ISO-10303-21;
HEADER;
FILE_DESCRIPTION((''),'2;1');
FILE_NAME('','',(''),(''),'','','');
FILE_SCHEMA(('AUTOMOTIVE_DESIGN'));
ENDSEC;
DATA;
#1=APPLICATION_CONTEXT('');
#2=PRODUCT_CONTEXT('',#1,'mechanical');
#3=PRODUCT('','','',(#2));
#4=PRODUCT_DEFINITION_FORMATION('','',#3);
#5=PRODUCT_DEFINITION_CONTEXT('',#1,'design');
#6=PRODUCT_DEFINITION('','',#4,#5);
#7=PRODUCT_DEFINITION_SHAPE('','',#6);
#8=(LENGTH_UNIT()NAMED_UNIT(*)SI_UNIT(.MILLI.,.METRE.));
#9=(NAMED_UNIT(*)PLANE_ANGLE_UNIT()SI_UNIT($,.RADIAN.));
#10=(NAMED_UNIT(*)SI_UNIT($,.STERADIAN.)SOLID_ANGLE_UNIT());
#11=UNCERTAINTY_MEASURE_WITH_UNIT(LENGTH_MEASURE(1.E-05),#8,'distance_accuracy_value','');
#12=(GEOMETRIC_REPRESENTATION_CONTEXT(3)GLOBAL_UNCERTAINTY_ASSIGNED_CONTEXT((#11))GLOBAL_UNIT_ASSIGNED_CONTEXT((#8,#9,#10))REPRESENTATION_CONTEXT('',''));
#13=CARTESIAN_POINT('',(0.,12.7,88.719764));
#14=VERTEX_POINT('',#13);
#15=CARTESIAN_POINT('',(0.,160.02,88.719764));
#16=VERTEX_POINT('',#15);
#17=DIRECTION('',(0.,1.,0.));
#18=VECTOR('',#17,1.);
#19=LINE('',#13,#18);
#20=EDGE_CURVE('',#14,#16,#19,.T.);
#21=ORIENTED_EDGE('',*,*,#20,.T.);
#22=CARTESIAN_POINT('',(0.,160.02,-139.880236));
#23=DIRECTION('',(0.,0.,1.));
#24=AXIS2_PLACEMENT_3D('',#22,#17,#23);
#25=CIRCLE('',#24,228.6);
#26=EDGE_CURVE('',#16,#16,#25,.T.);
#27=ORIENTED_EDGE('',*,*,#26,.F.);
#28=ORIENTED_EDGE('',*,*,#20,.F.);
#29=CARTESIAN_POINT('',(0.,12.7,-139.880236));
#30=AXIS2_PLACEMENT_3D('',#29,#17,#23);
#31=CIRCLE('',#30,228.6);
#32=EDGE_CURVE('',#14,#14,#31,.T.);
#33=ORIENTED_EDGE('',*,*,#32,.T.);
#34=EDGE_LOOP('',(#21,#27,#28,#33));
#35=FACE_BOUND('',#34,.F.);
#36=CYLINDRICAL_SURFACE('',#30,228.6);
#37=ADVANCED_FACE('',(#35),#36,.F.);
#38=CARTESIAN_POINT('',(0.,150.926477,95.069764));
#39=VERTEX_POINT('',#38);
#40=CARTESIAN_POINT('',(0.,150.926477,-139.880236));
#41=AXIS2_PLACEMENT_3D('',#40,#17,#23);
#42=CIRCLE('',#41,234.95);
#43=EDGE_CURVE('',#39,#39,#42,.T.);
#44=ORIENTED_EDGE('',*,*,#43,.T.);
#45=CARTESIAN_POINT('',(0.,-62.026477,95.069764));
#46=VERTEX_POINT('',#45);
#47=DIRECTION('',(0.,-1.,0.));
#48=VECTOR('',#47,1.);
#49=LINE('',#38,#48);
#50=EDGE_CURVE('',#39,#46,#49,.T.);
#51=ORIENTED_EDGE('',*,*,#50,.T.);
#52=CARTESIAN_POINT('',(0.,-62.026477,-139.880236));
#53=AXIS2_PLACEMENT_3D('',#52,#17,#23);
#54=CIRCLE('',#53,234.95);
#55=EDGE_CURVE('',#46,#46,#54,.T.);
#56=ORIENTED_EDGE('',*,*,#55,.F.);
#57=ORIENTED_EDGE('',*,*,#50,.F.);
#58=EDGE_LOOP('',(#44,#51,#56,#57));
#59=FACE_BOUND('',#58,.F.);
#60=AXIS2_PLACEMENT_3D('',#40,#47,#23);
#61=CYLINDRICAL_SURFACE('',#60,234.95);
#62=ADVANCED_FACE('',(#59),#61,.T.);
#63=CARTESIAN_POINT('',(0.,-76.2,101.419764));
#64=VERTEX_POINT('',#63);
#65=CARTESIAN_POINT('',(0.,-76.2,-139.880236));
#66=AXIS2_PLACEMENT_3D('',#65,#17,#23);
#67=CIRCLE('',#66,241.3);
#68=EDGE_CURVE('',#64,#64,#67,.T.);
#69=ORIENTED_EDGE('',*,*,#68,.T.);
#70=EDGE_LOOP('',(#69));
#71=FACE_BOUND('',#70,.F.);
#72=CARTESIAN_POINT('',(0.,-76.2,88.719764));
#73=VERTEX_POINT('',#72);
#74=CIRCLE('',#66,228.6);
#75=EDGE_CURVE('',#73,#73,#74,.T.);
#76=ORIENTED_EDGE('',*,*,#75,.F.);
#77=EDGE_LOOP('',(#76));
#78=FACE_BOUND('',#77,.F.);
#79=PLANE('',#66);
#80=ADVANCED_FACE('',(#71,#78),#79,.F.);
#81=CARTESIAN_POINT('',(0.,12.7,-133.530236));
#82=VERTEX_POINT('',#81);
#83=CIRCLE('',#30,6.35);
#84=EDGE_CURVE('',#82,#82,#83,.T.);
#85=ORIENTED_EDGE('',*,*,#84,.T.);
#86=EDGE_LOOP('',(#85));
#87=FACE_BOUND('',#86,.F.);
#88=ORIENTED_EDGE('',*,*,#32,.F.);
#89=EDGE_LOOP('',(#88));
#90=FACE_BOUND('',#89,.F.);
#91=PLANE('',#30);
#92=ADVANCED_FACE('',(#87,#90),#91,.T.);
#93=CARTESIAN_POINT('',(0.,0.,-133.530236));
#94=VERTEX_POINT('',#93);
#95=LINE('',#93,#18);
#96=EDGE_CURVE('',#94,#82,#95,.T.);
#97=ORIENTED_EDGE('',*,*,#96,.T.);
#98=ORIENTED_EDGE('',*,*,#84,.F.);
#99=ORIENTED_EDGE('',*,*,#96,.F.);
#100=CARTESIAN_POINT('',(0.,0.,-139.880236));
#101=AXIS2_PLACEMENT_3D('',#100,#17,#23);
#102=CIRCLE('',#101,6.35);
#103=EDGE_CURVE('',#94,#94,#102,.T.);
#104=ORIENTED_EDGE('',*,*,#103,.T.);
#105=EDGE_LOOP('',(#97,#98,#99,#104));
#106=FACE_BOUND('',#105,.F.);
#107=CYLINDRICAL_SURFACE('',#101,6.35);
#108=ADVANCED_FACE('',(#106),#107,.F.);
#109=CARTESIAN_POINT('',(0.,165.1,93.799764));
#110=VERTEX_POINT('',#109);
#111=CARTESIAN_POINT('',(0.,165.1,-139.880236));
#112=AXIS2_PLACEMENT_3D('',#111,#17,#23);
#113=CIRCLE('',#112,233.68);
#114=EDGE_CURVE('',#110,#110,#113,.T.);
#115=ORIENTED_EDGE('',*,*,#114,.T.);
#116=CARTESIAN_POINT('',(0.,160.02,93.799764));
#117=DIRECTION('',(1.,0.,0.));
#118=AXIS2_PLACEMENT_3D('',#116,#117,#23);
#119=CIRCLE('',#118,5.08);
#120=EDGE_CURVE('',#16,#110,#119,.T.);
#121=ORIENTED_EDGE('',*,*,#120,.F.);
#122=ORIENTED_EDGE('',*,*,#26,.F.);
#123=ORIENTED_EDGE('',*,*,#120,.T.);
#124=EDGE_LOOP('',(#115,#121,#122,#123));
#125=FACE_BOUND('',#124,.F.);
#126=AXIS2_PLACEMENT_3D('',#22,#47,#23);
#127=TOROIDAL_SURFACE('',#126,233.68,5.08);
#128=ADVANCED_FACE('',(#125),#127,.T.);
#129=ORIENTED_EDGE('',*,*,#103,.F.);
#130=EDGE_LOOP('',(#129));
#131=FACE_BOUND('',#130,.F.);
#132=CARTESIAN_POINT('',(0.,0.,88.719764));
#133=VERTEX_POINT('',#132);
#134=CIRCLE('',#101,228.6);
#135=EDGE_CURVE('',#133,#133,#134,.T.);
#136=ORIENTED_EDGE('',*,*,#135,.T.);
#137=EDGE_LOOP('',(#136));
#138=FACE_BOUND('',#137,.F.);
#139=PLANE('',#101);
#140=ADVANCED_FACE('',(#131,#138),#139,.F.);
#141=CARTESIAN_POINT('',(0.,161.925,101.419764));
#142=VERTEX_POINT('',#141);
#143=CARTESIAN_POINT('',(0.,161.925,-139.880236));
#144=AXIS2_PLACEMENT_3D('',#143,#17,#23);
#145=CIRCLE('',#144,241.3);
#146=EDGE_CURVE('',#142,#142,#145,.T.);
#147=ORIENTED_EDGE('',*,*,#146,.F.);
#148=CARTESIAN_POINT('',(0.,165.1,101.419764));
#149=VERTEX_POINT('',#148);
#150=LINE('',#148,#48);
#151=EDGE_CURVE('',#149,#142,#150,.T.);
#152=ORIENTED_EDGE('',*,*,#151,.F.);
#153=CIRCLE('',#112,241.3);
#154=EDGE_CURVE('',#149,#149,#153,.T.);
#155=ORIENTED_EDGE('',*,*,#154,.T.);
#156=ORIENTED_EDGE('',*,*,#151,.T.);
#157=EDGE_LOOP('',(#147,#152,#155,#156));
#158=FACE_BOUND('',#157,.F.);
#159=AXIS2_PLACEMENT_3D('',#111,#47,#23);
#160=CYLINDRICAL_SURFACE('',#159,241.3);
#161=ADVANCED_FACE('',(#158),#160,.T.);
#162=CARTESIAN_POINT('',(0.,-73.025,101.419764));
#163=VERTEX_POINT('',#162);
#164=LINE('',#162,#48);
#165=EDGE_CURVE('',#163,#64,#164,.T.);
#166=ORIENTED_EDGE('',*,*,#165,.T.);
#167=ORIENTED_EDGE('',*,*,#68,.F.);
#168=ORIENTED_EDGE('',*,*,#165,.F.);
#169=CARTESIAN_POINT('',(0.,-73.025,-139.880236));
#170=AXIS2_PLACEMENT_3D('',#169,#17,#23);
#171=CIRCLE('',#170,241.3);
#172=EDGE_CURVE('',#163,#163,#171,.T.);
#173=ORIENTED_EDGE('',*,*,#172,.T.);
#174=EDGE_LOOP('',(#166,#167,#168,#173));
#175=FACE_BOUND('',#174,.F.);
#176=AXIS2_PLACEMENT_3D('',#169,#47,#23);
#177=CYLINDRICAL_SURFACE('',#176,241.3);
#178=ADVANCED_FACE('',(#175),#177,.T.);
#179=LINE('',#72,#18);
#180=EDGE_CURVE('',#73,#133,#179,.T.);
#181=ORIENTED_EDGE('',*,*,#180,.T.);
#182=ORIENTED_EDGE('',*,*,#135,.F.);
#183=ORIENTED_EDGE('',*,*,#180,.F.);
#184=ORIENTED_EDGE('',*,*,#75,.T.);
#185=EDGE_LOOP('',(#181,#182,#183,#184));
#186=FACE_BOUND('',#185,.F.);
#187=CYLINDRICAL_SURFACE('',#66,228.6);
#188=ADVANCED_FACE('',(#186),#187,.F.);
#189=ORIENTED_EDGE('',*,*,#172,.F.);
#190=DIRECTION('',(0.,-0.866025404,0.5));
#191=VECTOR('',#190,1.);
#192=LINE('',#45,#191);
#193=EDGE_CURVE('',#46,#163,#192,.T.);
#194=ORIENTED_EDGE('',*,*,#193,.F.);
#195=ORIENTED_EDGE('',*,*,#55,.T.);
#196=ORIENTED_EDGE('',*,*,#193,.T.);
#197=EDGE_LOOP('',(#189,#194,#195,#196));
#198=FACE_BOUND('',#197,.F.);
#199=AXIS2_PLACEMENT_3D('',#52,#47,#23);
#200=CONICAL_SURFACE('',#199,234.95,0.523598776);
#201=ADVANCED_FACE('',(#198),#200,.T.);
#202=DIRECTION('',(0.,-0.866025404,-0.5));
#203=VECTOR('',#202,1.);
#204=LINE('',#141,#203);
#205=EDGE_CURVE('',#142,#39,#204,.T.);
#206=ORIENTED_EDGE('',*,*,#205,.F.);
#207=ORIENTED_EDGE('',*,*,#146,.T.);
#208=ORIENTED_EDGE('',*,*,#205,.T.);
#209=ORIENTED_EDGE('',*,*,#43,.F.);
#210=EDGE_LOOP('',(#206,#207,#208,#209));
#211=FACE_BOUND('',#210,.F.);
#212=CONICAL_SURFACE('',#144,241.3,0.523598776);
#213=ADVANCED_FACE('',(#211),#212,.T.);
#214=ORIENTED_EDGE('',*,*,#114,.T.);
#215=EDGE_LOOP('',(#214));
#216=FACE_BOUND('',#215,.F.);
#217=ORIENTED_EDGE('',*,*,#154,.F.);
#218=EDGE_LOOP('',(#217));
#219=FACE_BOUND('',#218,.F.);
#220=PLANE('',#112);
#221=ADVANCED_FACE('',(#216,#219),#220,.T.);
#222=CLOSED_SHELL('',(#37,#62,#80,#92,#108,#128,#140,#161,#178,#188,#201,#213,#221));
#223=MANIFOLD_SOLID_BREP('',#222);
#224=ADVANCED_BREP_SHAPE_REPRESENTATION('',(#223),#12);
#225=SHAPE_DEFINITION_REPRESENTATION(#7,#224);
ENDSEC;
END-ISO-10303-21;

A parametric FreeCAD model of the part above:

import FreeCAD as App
import Part
import Sketcher

V = App.Vector
Q = App.Units.Quantity


def edges_at(feature, points):
    """Names of the edges that pass closest to the given points."""
    edges = feature.Shape.Edges
    near = lambda p: min(range(len(edges)), key=lambda i: edges[i].distToShape(Part.Vertex(*p))[0])
    return sorted({f"Edge{near(p) + 1}" for p in points})

doc = App.newDocument("Part")
body = doc.addObject("PartDesign::Body", "Body")

sketch1 = doc.addObject("Sketcher::SketchObject", "Sketch")
body.addObject(sketch1)
sketch1.AttachmentSupport = (doc.YZ_Plane, [""])
sketch1.MapMode = "FlatFace"
sketch1.addGeometry([
    Part.LineSegment(V(0, 88.7, 0), V(0, -133.5, 0)),
    Part.LineSegment(V(0, -133.5, 0), V(12.7, -133.5, 0)),
    Part.LineSegment(V(12.7, -133.5, 0), V(12.7, 88.7, 0)),
    Part.LineSegment(V(12.7, 88.7, 0), V(165.1, 88.7, 0)),
    Part.LineSegment(V(165.1, 88.7, 0), V(165.1, 101.4, 0)),
    Part.LineSegment(V(165.1, 101.4, 0), V(161.9, 101.4, 0)),
    Part.LineSegment(V(161.9, 101.4, 0), V(150.9, 95.1, 0)),
    Part.LineSegment(V(150.9, 95.1, 0), V(-62, 95.1, 0)),
    Part.LineSegment(V(-62, 95.1, 0), V(-73, 101.4, 0)),
    Part.LineSegment(V(-73, 101.4, 0), V(-76.2, 101.4, 0)),
    Part.LineSegment(V(-76.2, 101.4, 0), V(-76.2, 88.7, 0)),
    Part.LineSegment(V(-76.2, 88.7, 0), V(0, 88.7, 0)),
], False)
sketch1.addGeometry(Part.LineSegment(V(-76.2, -139.9, 0), V(165.1, -139.9, 0)), True)
sketch1.addConstraint([
    Sketcher.Constraint("Coincident", 0, 2, 1, 1),
    Sketcher.Constraint("Coincident", 1, 2, 2, 1),
    Sketcher.Constraint("Coincident", 2, 2, 3, 1),
    Sketcher.Constraint("Coincident", 3, 2, 4, 1),
    Sketcher.Constraint("Coincident", 4, 2, 5, 1),
    Sketcher.Constraint("Coincident", 5, 2, 6, 1),
    Sketcher.Constraint("Coincident", 6, 2, 7, 1),
    Sketcher.Constraint("Coincident", 7, 2, 8, 1),
    Sketcher.Constraint("Coincident", 8, 2, 9, 1),
    Sketcher.Constraint("Coincident", 9, 2, 10, 1),
    Sketcher.Constraint("Coincident", 10, 2, 11, 1),
    Sketcher.Constraint("Coincident", 11, 2, 0, 1),
    Sketcher.Constraint("Vertical", 0),
    Sketcher.Constraint("Horizontal", 1),
    Sketcher.Constraint("Vertical", 2),
    Sketcher.Constraint("Horizontal", 3),
    Sketcher.Constraint("Vertical", 4),
    Sketcher.Constraint("Horizontal", 5),
    Sketcher.Constraint("Horizontal", 7),
    Sketcher.Constraint("Horizontal", 9),
    Sketcher.Constraint("Vertical", 10),
    Sketcher.Constraint("Horizontal", 11),
    Sketcher.Constraint("Horizontal", 12),
    Sketcher.Constraint("PointOnObject", 0, 2, -2),
    Sketcher.Constraint("Horizontal", 5, 2, 8, 2),
    Sketcher.Constraint("Horizontal", 3, 2, 10, 2),
    Sketcher.Constraint("Vertical", 10, 2, 12, 1),
    Sketcher.Constraint("Vertical", 4, 2, 12, 2),
    Sketcher.Constraint("Equal", 5, 9),
    Sketcher.Constraint("Equal", 1, 4),
    Sketcher.Constraint("Equal", 6, 8),
    Sketcher.Constraint("DistanceX", 3, 1, 3, 2, Q("6 in")),
    Sketcher.Constraint("DistanceX", 11, 1, 11, 2, Q("3 in")),
    Sketcher.Constraint("DistanceX", 1, 1, 1, 2, Q("0.5 in")),
    Sketcher.Constraint("Angle", 6, Q("-150 deg")),
    Sketcher.Constraint("DistanceY", 1, 2, 6, 2, Q("9 in")),
    Sketcher.Constraint("DistanceY", 12, 1, 10, 2, Q("9 in")),
    Sketcher.Constraint("Distance", 6, Q("0.5 in")),
    Sketcher.Constraint("DistanceX", 5, 2, 5, 1, Q("0.125 in")),
    Sketcher.Constraint("DistanceY", 0, 2, -1, 1, 133.530236),
])
revolution = doc.addObject("PartDesign::Revolution", "Revolution")
body.addObject(revolution)
revolution.Profile = sketch1
revolution.ReferenceAxis = (sketch1, ["Axis0"])
revolution.Angle = 360
doc.recompute()

fillet = doc.addObject("PartDesign::Fillet", "Fillet")
body.addObject(fillet)
fillet.Base = (revolution, edges_at(revolution, [(0, 165.1, -368.48)]))
fillet.Radius = Q("0.2 in")

doc.recompute()
